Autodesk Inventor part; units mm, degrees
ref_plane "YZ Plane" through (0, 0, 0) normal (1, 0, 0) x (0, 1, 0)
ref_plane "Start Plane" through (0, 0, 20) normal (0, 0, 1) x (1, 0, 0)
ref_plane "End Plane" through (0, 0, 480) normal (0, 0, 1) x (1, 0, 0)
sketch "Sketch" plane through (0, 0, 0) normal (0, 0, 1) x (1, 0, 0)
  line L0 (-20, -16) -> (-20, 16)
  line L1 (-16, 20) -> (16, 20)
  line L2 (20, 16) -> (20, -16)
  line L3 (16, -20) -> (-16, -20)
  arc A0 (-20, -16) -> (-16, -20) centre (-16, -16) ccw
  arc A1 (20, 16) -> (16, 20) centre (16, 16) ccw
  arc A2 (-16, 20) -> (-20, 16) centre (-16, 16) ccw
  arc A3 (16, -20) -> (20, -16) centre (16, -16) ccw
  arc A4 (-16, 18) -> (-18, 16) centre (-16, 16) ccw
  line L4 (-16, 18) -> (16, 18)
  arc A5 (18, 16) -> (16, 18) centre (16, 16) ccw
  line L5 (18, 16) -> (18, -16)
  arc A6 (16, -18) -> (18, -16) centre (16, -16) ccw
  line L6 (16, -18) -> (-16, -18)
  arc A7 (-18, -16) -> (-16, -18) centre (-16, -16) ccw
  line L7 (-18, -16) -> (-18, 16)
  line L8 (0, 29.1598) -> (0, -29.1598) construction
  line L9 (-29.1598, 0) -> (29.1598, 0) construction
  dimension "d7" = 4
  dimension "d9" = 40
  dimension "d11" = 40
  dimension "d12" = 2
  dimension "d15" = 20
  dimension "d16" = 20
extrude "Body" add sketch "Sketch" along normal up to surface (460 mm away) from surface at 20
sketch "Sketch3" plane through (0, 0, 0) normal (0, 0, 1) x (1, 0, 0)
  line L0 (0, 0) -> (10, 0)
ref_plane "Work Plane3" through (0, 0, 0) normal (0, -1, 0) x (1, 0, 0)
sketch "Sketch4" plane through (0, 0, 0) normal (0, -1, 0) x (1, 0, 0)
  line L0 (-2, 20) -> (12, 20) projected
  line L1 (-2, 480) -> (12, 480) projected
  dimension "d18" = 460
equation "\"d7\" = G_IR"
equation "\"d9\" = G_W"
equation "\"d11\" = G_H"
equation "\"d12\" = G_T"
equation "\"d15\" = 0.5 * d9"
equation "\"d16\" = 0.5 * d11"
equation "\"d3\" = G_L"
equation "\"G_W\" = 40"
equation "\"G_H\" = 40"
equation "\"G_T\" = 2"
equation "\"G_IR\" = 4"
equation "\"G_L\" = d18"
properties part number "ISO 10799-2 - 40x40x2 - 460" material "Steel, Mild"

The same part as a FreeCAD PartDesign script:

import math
import FreeCAD as App
import Part
import Sketcher
from FreeCAD import Vector

doc = App.newDocument("Part")
params = doc.addObject("Spreadsheet::Sheet", "Params")
for row, (alias, value) in enumerate([
    ("sketch1_radius", "4 mm"),
    ("sketch1_radius2", "2 mm"),
    ("pad1_length", "460 mm"),
], start=1):
    params.set(f"A{row}", alias)
    params.set(f"B{row}", "=" + value)
    params.setAlias(f"B{row}", alias)

body = doc.addObject("PartDesign::Body", "Body")

sketch1 = body.newObject("Sketcher::SketchObject", "Sketch")
sketch1.AttachmentSupport = (doc.getObject("XY_Plane"), [""])
sketch1.MapMode = "FlatFace"
sketch1.AttachmentOffset = App.Placement(Vector(0, 0, 20), App.Rotation())
sketch1.addGeometry([
    Part.LineSegment(Vector(-20, 16, 0), Vector(-20, -16, 0)),
    Part.ArcOfCircle(Part.Circle(Vector(-16, -16, 0), Vector(0, 0, 1), 4), math.radians(180), math.radians(270)),
    Part.LineSegment(Vector(-16, -20, 0), Vector(16, -20, 0)),
    Part.ArcOfCircle(Part.Circle(Vector(16, -16, 0), Vector(0, 0, 1), 4), math.radians(-90), math.radians(0)),
    Part.LineSegment(Vector(20, -16, 0), Vector(20, 16, 0)),
    Part.ArcOfCircle(Part.Circle(Vector(16, 16, 0), Vector(0, 0, 1), 4), math.radians(0), math.radians(90)),
    Part.LineSegment(Vector(16, 20, 0), Vector(-16, 20, 0)),
    Part.ArcOfCircle(Part.Circle(Vector(-16, 16, 0), Vector(0, 0, 1), 4), math.radians(90), math.radians(180)),
    Part.ArcOfCircle(Part.Circle(Vector(-16, 16, 0), Vector(0, 0, 1), 2), math.radians(90), math.radians(180)),
    Part.LineSegment(Vector(-16, 18, 0), Vector(16, 18, 0)),
    Part.ArcOfCircle(Part.Circle(Vector(16, 16, 0), Vector(0, 0, 1), 2), math.radians(0), math.radians(90)),
    Part.LineSegment(Vector(18, 16, 0), Vector(18, -16, 0)),
    Part.ArcOfCircle(Part.Circle(Vector(16, -16, 0), Vector(0, 0, 1), 2), math.radians(-90), math.radians(0)),
    Part.LineSegment(Vector(16, -18, 0), Vector(-16, -18, 0)),
    Part.ArcOfCircle(Part.Circle(Vector(-16, -16, 0), Vector(0, 0, 1), 2), math.radians(180), math.radians(270)),
    Part.LineSegment(Vector(-18, -16, 0), Vector(-18, 16, 0)),
], False)
sketch1.addConstraint([
    Sketcher.Constraint("Tangent", 0, 2, 1, 1),
    Sketcher.Constraint("Tangent", 1, 2, 2, 1),
    Sketcher.Constraint("Tangent", 2, 2, 3, 1),
    Sketcher.Constraint("Tangent", 3, 2, 4, 1),
    Sketcher.Constraint("Tangent", 4, 2, 5, 1),
    Sketcher.Constraint("Tangent", 5, 2, 6, 1),
    Sketcher.Constraint("Tangent", 6, 2, 7, 1),
    Sketcher.Constraint("Tangent", 7, 2, 0, 1),
    Sketcher.Constraint("Tangent", 8, 1, 9, 1),
    Sketcher.Constraint("Tangent", 9, 2, 10, 2),
    Sketcher.Constraint("Tangent", 10, 1, 11, 1),
    Sketcher.Constraint("Tangent", 11, 2, 12, 2),
    Sketcher.Constraint("Tangent", 12, 1, 13, 1),
    Sketcher.Constraint("Tangent", 13, 2, 14, 2),
    Sketcher.Constraint("Tangent", 14, 1, 15, 1),
    Sketcher.Constraint("Tangent", 15, 2, 8, 2),
    Sketcher.Constraint("Vertical", 0),
    Sketcher.Constraint("Horizontal", 2),
    Sketcher.Constraint("Vertical", 4),
    Sketcher.Constraint("Horizontal", 6),
    Sketcher.Constraint("Horizontal", 9),
    Sketcher.Constraint("Vertical", 11),
    Sketcher.Constraint("Horizontal", 13),
    Sketcher.Constraint("Vertical", 15),
    Sketcher.Constraint("Coincident", 8, 3, 7, 3),
    Sketcher.Constraint("Coincident", 10, 3, 5, 3),
    Sketcher.Constraint("Coincident", 12, 3, 3, 3),
    Sketcher.Constraint("Equal", 1, 3),
    Sketcher.Constraint("Equal", 3, 5),
    Sketcher.Constraint("Equal", 5, 7),
    Sketcher.Constraint("Equal", 12, 14),
    Sketcher.Constraint("Symmetric", 1, 3, 5, 3, -1, 1),
    Sketcher.Constraint("Equal", 13, 0),
    Sketcher.Constraint("Radius", 1, 4.0),
    Sketcher.Constraint("Radius", 8, 2.0),
    Sketcher.Constraint("DistanceX", 0, 2, -1, 1, 20.0),
])
sketch1.setExpression("Constraints[33]", "Params.sketch1_radius")
sketch1.setExpression("Constraints[34]", "Params.sketch1_radius2")
pad1 = body.newObject("PartDesign::Pad", "Pad")
pad1.Profile = sketch1
pad1.setExpression("Length", "Params.pad1_length")

doc.recompute()
